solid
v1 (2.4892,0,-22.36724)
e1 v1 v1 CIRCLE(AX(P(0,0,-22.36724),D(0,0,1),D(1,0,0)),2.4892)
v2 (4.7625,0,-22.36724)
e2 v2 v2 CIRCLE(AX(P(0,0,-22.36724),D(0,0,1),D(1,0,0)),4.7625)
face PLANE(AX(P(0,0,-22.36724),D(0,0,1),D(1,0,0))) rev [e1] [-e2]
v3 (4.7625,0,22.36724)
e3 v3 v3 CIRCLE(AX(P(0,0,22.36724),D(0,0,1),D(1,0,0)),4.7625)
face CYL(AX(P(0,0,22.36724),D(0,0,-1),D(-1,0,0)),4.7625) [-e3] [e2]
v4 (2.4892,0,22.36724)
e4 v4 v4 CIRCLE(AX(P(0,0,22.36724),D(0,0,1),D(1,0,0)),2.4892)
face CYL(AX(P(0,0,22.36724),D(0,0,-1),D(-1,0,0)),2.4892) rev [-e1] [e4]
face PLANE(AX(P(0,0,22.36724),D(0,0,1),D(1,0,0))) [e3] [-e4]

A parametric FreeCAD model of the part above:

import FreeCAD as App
import Part
import Sketcher
Q = App.Units.Quantity

doc = App.newDocument("Part")
body = doc.addObject("PartDesign::Body", "Body")

# Sketch on XY plane
sketch1 = body.newObject("Sketcher::SketchObject", "Sketch")
sketch1.AttachmentSupport = (doc.getObject("XY_Plane"), [""])
sketch1.MapMode = "FlatFace"
sketch1.addGeometry([
    Part.Circle(App.Vector(0, 0, 0), App.Vector(0, 0, 1), 4.8),
    Part.Circle(App.Vector(0, 0, 0), App.Vector(0, 0, 1), 2.5),
], False)
sketch1.addConstraint([
    Sketcher.Constraint("Coincident", 0, 3, -1, 1),
    Sketcher.Constraint("Coincident", 1, 3, -1, 1),
    Sketcher.Constraint("Diameter", 0, Q("0.375 in")),
    Sketcher.Constraint("Diameter", 1, Q("0.196 in")),
])
pad1 = body.newObject("PartDesign::Pad", "Pad")
pad1.Profile = sketch1
pad1.Length = Q("1.7612 in")
pad1.Midplane = True

doc.recompute()
